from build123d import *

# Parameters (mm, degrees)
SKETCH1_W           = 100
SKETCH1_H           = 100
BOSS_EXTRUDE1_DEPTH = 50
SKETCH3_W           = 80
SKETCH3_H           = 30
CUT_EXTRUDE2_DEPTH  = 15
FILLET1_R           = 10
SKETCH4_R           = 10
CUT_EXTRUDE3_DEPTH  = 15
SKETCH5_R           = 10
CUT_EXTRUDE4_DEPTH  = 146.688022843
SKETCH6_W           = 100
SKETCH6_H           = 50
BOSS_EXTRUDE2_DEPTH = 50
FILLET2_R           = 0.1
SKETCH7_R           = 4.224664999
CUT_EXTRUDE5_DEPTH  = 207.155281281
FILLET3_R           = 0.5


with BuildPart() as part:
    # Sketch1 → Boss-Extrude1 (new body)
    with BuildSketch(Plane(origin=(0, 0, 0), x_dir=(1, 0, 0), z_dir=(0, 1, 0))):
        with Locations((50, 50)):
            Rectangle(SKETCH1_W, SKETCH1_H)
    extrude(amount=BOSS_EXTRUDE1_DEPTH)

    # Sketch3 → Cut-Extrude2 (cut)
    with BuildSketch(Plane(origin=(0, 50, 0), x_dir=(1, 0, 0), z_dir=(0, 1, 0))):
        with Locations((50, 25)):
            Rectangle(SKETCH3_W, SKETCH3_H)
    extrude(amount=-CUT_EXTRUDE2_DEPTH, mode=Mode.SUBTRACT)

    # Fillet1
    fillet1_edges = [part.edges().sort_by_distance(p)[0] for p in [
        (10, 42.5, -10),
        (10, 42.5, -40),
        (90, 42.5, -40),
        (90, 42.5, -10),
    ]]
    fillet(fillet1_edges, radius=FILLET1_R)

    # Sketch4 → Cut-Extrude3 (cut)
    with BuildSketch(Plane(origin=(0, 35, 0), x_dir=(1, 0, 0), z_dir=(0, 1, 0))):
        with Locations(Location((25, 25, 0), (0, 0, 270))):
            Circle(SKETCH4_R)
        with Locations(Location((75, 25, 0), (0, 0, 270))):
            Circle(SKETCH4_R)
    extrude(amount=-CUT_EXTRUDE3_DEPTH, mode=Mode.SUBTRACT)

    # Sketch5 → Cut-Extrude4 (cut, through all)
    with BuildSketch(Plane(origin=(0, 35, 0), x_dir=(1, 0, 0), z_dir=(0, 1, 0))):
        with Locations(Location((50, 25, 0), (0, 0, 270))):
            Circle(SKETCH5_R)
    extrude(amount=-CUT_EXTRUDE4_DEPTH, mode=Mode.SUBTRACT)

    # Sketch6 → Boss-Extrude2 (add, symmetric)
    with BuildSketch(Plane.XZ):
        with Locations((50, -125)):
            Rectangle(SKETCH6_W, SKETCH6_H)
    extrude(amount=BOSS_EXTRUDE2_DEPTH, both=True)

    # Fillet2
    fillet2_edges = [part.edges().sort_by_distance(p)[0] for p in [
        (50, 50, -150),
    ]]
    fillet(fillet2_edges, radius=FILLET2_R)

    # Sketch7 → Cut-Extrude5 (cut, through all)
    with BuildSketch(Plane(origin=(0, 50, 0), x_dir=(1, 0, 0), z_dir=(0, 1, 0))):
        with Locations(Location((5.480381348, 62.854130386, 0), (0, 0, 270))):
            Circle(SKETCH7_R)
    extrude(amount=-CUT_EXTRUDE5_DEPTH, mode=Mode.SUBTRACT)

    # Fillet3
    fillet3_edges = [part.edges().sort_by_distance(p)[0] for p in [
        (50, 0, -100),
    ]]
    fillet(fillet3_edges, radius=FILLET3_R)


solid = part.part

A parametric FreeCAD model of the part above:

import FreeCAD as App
import Part
import Sketcher
from FreeCAD import Vector
Q = App.Units.Quantity


def edges_at(feature, points):
    """Names of the edges that pass closest to the given points."""
    edges = feature.Shape.Edges
    near = lambda p: min(range(len(edges)), key=lambda i: edges[i].distToShape(Part.Vertex(*p))[0])
    return sorted({f"Edge{near(p) + 1}" for p in points})

doc = App.newDocument("Part")
body = doc.addObject("PartDesign::Body", "Body")

# Sketch on XZ plane
sketch1 = doc.addObject("Sketcher::SketchObject", "Sketch")
body.addObject(sketch1)
sketch1.AttachmentSupport = (doc.XZ_Plane, [""])
sketch1.MapMode = "FlatFace"
sketch1.addGeometry([
    Part.LineSegment(Vector(0, -100, 0), Vector(0, 0, 0)),
    Part.LineSegment(Vector(0, 0, 0), Vector(100, 0, 0)),
    Part.LineSegment(Vector(100, 0, 0), Vector(100, -100, 0)),
    Part.LineSegment(Vector(100, -100, 0), Vector(0, -100, 0)),
], False)
sketch1.addConstraint([
    Sketcher.Constraint("Coincident", 0, 2, 1, 1),
    Sketcher.Constraint("Coincident", 1, 2, 2, 1),
    Sketcher.Constraint("Coincident", 2, 2, 3, 1),
    Sketcher.Constraint("Coincident", 3, 2, 0, 1),
    Sketcher.Constraint("Vertical", 0),
    Sketcher.Constraint("Horizontal", 1),
    Sketcher.Constraint("Vertical", 2),
    Sketcher.Constraint("Horizontal", 3),
    Sketcher.Constraint("Coincident", 0, 2, -1, 1),
    Sketcher.Constraint("Equal", 3, 0),
    Sketcher.Constraint("DistanceX", 1, 1, 1, 2, Q("100 mm")),
])
pad1 = doc.addObject("PartDesign::Pad", "Pad")
body.addObject(pad1)
pad1.Profile = sketch1
pad1.Length = 50
pad1.Reversed = True

# Sketch on XZ plane
sketch2 = doc.addObject("Sketcher::SketchObject", "Sketch001")
body.addObject(sketch2)
sketch2.AttachmentSupport = (doc.XZ_Plane, [""])
sketch2.MapMode = "FlatFace"
sketch2.AttachmentOffset = App.Placement(Vector(0, 0, -50), App.Rotation())
sketch2.addGeometry([
    Part.LineSegment(Vector(10, -40, 0), Vector(10, -10, 0)),
    Part.LineSegment(Vector(10, -10, 0), Vector(90, -10, 0)),
    Part.LineSegment(Vector(90, -10, 0), Vector(90, -40, 0)),
    Part.LineSegment(Vector(90, -40, 0), Vector(10, -40, 0)),
], False)
sketch2.addConstraint([
    Sketcher.Constraint("Coincident", 0, 2, 1, 1),
    Sketcher.Constraint("Coincident", 1, 2, 2, 1),
    Sketcher.Constraint("Coincident", 2, 2, 3, 1),
    Sketcher.Constraint("Coincident", 3, 2, 0, 1),
    Sketcher.Constraint("Vertical", 0),
    Sketcher.Constraint("Horizontal", 1),
    Sketcher.Constraint("Vertical", 2),
    Sketcher.Constraint("Horizontal", 3),
    Sketcher.Constraint("DistanceX", 1, 1, 1, 2, Q("80 mm")),
    Sketcher.Constraint("DistanceY", 0, 1, 0, 2, Q("30 mm")),
    Sketcher.Constraint("DistanceX", -1, 1, 0, 2, Q("10 mm")),
    Sketcher.Constraint("DistanceY", 0, 2, -1, 1, Q("10 mm")),
])
pocket1 = doc.addObject("PartDesign::Pocket", "Pocket")
body.addObject(pocket1)
pocket1.Profile = sketch2
pocket1.Length = 15
pocket1.Reversed = True
doc.recompute()

fillet = doc.addObject("PartDesign::Fillet", "Fillet")
body.addObject(fillet)
fillet.Base = (pocket1, edges_at(pocket1, [
    (10, 42.5, -10),
    (10, 42.5, -40),
    (90, 42.5, -40),
    (90, 42.5, -10),
]))
fillet.Radius = 10

# Sketch on XZ plane
sketch3 = doc.addObject("Sketcher::SketchObject", "Sketch002")
body.addObject(sketch3)
sketch3.AttachmentSupport = (doc.XZ_Plane, [""])
sketch3.MapMode = "FlatFace"
sketch3.AttachmentOffset = App.Placement(Vector(0, 0, -35), App.Rotation())
sketch3.addGeometry([
    Part.Circle(Vector(25, -25, 0), Vector(0, 0, 1), 10),
    Part.Circle(Vector(75, -25, 0), Vector(0, 0, 1), 10),
], False)
sketch3.addConstraint([
    Sketcher.Constraint("Equal", 0, 1),
    Sketcher.Constraint("Horizontal", 0, 3, 1, 3),
    Sketcher.Constraint("Diameter", 0, Q("20 mm")),
    Sketcher.Constraint("DistanceX", -1, 1, 0, 3, Q("25 mm")),
    Sketcher.Constraint("DistanceY", 0, 3, -1, 1, Q("25 mm")),
    Sketcher.Constraint("DistanceX", -1, 1, 1, 3, Q("75 mm")),
])
pocket2 = doc.addObject("PartDesign::Pocket", "Pocket001")
body.addObject(pocket2)
pocket2.Profile = sketch3
pocket2.Length = 15
pocket2.Reversed = True

# Sketch on XZ plane
sketch4 = doc.addObject("Sketcher::SketchObject", "Sketch003")
body.addObject(sketch4)
sketch4.AttachmentSupport = (doc.XZ_Plane, [""])
sketch4.MapMode = "FlatFace"
sketch4.AttachmentOffset = App.Placement(Vector(0, 0, -35), App.Rotation())
sketch4.addGeometry(Part.Circle(Vector(50, -25, 0), Vector(0, 0, 1), 10), False)
sketch4.addConstraint([
    Sketcher.Constraint("Diameter", 0, Q("20 mm")),
    Sketcher.Constraint("DistanceX", -1, 1, 0, 3, Q("50 mm")),
    Sketcher.Constraint("DistanceY", 0, 3, -1, 1, Q("25 mm")),
])
pocket3 = doc.addObject("PartDesign::Pocket", "Pocket002")
body.addObject(pocket3)
pocket3.Profile = sketch4
pocket3.Type = "ThroughAll"
pocket3.Reversed = True

# Sketch on XZ plane
sketch5 = doc.addObject("Sketcher::SketchObject", "Sketch004")
body.addObject(sketch5)
sketch5.AttachmentSupport = (doc.XZ_Plane, [""])
sketch5.MapMode = "FlatFace"
sketch5.addGeometry([
    Part.LineSegment(Vector(0, -100, 0), Vector(0, -150, 0)),
    Part.LineSegment(Vector(0, -150, 0), Vector(100, -150, 0)),
    Part.LineSegment(Vector(100, -150, 0), Vector(100, -100, 0)),
    Part.LineSegment(Vector(100, -100, 0), Vector(0, -100, 0)),
], False)
sketch5.addConstraint([
    Sketcher.Constraint("Coincident", 0, 2, 1, 1),
    Sketcher.Constraint("Coincident", 1, 2, 2, 1),
    Sketcher.Constraint("Coincident", 2, 2, 3, 1),
    Sketcher.Constraint("Coincident", 3, 2, 0, 1),
    Sketcher.Constraint("Vertical", 0),
    Sketcher.Constraint("Horizontal", 1),
    Sketcher.Constraint("Vertical", 2),
    Sketcher.Constraint("Horizontal", 3),
    Sketcher.Constraint("PointOnObject", 0, 2, -2),
    Sketcher.Constraint("DistanceX", 1, 1, 1, 2, Q("100 mm")),
    Sketcher.Constraint("DistanceY", 0, 2, 0, 1, Q("50 mm")),
    Sketcher.Constraint("DistanceY", 0, 2, -1, 1, Q("150 mm")),
])
pad2 = doc.addObject("PartDesign::Pad", "Pad001")
body.addObject(pad2)
pad2.Profile = sketch5
pad2.Length = 100
pad2.Midplane = True
doc.recompute()

fillet2 = doc.addObject("PartDesign::Fillet", "Fillet001")
body.addObject(fillet2)
fillet2.Base = (pad2, edges_at(pad2, [(50, 50, -150)]))
fillet2.Radius = 0.1

# Sketch on XZ plane
sketch6 = doc.addObject("Sketcher::SketchObject", "Sketch005")
body.addObject(sketch6)
sketch6.AttachmentSupport = (doc.XZ_Plane, [""])
sketch6.MapMode = "FlatFace"
sketch6.AttachmentOffset = App.Placement(Vector(0, 0, -50), App.Rotation())
sketch6.addGeometry(Part.Circle(Vector(5.480381, -62.85413, 0), Vector(0, 0, 1), 4.224665), False)
sketch6.addConstraint([
    Sketcher.Constraint("Diameter", 0, Q("8.44933 mm")),
    Sketcher.Constraint("DistanceX", -1, 1, 0, 3, Q("5.480381 mm")),
    Sketcher.Constraint("DistanceY", 0, 3, -1, 1, Q("62.85413 mm")),
])
pocket4 = doc.addObject("PartDesign::Pocket", "Pocket003")
body.addObject(pocket4)
pocket4.Profile = sketch6
pocket4.Type = "ThroughAll"
pocket4.Reversed = True
doc.recompute()

fillet3 = doc.addObject("PartDesign::Fillet", "Fillet002")
body.addObject(fillet3)
fillet3.Base = (pocket4, edges_at(pocket4, [(50, 0, -100)]))
fillet3.Radius = 0.5

doc.recompute()
